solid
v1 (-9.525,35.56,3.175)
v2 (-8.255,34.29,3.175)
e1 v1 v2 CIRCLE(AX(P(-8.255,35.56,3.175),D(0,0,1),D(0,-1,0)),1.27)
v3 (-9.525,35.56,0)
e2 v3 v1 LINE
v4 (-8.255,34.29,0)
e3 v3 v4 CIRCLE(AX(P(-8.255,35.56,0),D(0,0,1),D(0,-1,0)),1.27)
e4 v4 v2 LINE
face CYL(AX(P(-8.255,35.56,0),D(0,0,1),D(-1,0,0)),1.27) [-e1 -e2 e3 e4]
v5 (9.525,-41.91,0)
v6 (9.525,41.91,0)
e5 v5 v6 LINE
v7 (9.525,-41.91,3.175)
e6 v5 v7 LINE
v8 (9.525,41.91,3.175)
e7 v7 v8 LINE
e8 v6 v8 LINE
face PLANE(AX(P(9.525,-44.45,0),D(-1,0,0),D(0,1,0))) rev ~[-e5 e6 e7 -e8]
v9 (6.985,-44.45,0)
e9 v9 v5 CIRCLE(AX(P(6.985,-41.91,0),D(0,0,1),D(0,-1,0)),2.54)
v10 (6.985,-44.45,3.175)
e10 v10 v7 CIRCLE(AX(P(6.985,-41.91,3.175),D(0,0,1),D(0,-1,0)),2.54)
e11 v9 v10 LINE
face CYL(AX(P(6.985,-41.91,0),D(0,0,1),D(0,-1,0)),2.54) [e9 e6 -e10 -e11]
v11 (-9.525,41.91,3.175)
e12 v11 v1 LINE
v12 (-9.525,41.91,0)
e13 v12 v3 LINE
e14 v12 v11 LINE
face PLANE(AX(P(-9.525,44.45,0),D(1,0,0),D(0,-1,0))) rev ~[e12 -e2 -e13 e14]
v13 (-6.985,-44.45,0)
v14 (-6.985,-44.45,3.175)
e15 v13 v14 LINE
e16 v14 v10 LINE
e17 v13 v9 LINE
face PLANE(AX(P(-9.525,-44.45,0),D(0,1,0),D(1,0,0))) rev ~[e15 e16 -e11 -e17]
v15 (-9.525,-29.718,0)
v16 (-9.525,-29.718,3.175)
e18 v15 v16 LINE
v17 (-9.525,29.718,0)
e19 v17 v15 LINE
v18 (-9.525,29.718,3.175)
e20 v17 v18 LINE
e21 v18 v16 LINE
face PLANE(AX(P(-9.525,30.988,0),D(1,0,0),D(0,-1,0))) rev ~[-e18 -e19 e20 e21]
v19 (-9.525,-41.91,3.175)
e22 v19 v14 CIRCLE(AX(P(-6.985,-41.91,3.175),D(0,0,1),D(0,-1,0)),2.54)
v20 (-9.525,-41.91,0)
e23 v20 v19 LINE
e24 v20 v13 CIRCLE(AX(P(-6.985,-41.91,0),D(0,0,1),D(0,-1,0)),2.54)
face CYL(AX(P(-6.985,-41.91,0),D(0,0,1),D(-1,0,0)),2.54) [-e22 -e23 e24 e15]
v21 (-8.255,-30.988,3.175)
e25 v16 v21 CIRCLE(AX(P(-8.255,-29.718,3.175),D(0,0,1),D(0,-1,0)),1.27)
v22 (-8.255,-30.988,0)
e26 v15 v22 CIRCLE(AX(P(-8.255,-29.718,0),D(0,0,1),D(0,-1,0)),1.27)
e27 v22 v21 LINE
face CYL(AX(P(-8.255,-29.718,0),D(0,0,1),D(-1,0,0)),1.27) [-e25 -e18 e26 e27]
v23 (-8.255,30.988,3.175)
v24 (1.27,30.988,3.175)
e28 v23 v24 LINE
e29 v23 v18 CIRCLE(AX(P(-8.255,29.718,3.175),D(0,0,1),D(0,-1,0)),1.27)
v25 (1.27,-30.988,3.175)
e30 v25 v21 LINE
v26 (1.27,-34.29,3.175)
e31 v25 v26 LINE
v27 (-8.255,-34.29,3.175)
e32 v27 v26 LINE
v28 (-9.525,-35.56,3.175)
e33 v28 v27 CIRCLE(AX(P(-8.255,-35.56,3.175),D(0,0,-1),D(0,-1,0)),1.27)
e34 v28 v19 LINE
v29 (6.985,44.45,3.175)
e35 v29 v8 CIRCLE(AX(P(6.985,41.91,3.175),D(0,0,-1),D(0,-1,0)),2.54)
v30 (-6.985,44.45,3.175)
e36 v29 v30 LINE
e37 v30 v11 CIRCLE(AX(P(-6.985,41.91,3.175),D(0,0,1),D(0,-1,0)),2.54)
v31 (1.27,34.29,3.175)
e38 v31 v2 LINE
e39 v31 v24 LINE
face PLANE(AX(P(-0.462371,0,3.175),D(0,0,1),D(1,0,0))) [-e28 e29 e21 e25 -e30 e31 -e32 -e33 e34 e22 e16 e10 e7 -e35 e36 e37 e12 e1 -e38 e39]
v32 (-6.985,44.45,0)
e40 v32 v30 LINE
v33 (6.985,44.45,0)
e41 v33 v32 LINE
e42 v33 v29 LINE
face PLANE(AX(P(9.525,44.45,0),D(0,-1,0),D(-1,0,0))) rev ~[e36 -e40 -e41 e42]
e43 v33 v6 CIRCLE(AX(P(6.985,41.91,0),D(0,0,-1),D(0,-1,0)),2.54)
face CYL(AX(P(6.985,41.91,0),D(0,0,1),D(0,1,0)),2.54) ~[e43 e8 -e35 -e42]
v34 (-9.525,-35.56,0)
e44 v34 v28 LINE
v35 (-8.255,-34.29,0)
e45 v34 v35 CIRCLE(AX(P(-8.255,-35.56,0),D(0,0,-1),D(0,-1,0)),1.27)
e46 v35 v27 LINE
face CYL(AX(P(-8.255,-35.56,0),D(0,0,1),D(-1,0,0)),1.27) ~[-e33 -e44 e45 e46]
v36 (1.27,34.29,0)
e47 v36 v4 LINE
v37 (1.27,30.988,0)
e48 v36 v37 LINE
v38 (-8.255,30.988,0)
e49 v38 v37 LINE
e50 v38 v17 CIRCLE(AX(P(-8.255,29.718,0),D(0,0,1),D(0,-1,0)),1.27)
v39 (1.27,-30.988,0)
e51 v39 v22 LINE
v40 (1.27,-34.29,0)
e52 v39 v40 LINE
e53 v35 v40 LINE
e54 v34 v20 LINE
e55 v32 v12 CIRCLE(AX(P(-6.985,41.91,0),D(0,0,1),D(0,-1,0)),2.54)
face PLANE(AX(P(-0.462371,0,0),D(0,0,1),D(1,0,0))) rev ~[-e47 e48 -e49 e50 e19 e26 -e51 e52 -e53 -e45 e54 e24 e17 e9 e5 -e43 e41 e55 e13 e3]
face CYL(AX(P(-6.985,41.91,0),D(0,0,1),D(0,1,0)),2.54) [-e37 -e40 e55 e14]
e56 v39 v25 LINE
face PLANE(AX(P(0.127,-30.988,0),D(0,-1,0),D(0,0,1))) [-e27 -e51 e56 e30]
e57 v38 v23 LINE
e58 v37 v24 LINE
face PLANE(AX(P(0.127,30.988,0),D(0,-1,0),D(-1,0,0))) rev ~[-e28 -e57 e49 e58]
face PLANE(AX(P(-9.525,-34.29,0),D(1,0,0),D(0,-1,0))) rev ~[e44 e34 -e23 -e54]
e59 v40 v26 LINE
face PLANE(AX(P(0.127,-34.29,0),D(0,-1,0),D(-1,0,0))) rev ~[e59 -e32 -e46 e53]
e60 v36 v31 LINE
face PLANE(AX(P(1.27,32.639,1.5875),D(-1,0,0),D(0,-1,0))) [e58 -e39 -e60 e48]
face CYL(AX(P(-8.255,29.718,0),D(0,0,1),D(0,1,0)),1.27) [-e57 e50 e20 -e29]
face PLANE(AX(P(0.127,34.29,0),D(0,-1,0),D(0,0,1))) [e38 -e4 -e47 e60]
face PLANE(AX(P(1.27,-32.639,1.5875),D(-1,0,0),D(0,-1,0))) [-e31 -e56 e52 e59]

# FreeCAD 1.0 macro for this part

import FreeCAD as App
import Part
import Sketcher
from FreeCAD import Vector
Q = App.Units.Quantity


def edges_at(feature, points):
    """Names of the edges that pass closest to the given points."""
    edges = feature.Shape.Edges
    near = lambda p: min(range(len(edges)), key=lambda i: edges[i].distToShape(Part.Vertex(*p))[0])
    return sorted({f"Edge{near(p) + 1}" for p in points})


def add_polygon(sketch, points):
    """Adds a closed chain of lines whose ends are joined by coincident constraints."""
    first, n = sketch.GeometryCount, len(points)
    for a, b in zip(points, points[1:] + points[:1]):
        sketch.addGeometry(Part.LineSegment(App.Vector(*a, 0), App.Vector(*b, 0)), False)
    for i in range(n):
        sketch.addConstraint(Sketcher.Constraint("Coincident", first + i, 2, first + (i + 1) % n, 1))

doc = App.newDocument("Part")
body = doc.addObject("PartDesign::Body", "Body")

sketch1 = body.newObject("Sketcher::SketchObject", "Sketch")
sketch1.AttachmentSupport = (doc.getObject("XY_Plane"), [""])
sketch1.MapMode = "FlatFace"
add_polygon(sketch1, [(9.5, 44.5), (-9.5, 44.5), (-9.5, 34.3), (0.1, 34.3), (0.1, 31), (-9.5, 31), (-9.5, -31), (0.1, -31), (0.1, -34.3), (-9.5, -34.3), (-9.5, -44.5), (9.5, -44.5)])
sketch1.addConstraint([
    Sketcher.Constraint("Horizontal", 0),
    Sketcher.Constraint("Vertical", 1),
    Sketcher.Constraint("Horizontal", 2),
    Sketcher.Constraint("Vertical", 3),
    Sketcher.Constraint("Horizontal", 4),
    Sketcher.Constraint("Vertical", 5),
    Sketcher.Constraint("Horizontal", 6),
    Sketcher.Constraint("Vertical", 7),
    Sketcher.Constraint("Horizontal", 8),
    Sketcher.Constraint("Vertical", 9),
    Sketcher.Constraint("Horizontal", 10),
    Sketcher.Constraint("Vertical", 11),
    Sketcher.Constraint("Symmetric", 0, 2, 10, 2, -1, 1),
    Sketcher.Constraint("Symmetric", 3, 2, 6, 2, -1),
    Sketcher.Constraint("Symmetric", 1, 2, 8, 2, -1),
    Sketcher.Constraint("Vertical", 1, 2, 4, 2),
    Sketcher.Constraint("DistanceY", 1, 2, 1, 1, Q("0.4 in")),
    Sketcher.Constraint("DistanceY", 11, 1, 11, 2, Q("3.5 in")),
    Sketcher.Constraint("DistanceX", 0, 2, 0, 1, Q("0.75 in")),
    Sketcher.Constraint("DistanceX", 2, 1, 2, 2, Q("0.38 in")),
    Sketcher.Constraint("DistanceY", 3, 2, 3, 1, Q("0.13 in")),
])
pad1 = body.newObject("PartDesign::Pad", "Pad")
pad1.Profile = sketch1
pad1.Length = Q("0.125 in")
doc.recompute()

fillet = body.newObject("PartDesign::Fillet", "Fillet")
fillet.Base = (pad1, edges_at(pad1, [
    (-9.525, 44.45, 1.587),
    (9.525, 44.45, 1.587),
    (9.525, -44.45, 1.587),
    (-9.525, -44.45, 1.587),
]))
fillet.Radius = Q("0.1 in")
doc.recompute()

fillet2 = body.newObject("PartDesign::Fillet", "Fillet001")
fillet2.Base = (fillet, edges_at(fillet, [
    (-9.525, 34.29, 1.587),
    (-9.525, -30.988, 1.587),
    (-9.525, 30.988, 1.587),
    (-9.525, -34.29, 1.587),
]))
fillet2.Radius = Q("0.05 in")

sketch2 = body.newObject("Sketcher::SketchObject", "Sketch001")
sketch2.AttachmentSupport = (doc.getObject("YZ_Plane"), [""])
sketch2.MapMode = "FlatFace"
sketch2.AttachmentOffset = App.Placement(Vector(0, 0, 0.005 * 25.4), App.Rotation())
add_polygon(sketch2, [(34.3, 3.2), (34.3, 0), (31, 0), (31, 3.2)])
add_polygon(sketch2, [(-31, 3.2), (-31, 0), (-34.3, 0), (-34.3, 3.2)])
sketch2.addConstraint([
    Sketcher.Constraint("Vertical", 0),
    Sketcher.Constraint("Horizontal", 1),
    Sketcher.Constraint("Vertical", 2),
    Sketcher.Constraint("Horizontal", 3),
    Sketcher.Constraint("Vertical", 4),
    Sketcher.Constraint("Horizontal", 5),
    Sketcher.Constraint("Vertical", 6),
    Sketcher.Constraint("Horizontal", 7),
    Sketcher.Constraint("Symmetric", 1, 2, 4, 2, -1, 1),
    Sketcher.Constraint("Symmetric", 0, 2, 5, 2, -2),
    Sketcher.Constraint("Horizontal", 3, 2, 6, 2),
    Sketcher.Constraint("DistanceX", 1, 2, 1, 1, Q("0.13 in")),
    Sketcher.Constraint("DistanceX", 5, 2, 0, 2, Q("2.7 in")),
    Sketcher.Constraint("DistanceY", 0, 2, 0, 1, Q("0.125 in")),
])
pocket1 = body.newObject("PartDesign::Pocket", "Pocket")
pocket1.Profile = sketch2
pocket1.Length = Q("0.045 in")
pocket1.Reversed = True

doc.recompute()
